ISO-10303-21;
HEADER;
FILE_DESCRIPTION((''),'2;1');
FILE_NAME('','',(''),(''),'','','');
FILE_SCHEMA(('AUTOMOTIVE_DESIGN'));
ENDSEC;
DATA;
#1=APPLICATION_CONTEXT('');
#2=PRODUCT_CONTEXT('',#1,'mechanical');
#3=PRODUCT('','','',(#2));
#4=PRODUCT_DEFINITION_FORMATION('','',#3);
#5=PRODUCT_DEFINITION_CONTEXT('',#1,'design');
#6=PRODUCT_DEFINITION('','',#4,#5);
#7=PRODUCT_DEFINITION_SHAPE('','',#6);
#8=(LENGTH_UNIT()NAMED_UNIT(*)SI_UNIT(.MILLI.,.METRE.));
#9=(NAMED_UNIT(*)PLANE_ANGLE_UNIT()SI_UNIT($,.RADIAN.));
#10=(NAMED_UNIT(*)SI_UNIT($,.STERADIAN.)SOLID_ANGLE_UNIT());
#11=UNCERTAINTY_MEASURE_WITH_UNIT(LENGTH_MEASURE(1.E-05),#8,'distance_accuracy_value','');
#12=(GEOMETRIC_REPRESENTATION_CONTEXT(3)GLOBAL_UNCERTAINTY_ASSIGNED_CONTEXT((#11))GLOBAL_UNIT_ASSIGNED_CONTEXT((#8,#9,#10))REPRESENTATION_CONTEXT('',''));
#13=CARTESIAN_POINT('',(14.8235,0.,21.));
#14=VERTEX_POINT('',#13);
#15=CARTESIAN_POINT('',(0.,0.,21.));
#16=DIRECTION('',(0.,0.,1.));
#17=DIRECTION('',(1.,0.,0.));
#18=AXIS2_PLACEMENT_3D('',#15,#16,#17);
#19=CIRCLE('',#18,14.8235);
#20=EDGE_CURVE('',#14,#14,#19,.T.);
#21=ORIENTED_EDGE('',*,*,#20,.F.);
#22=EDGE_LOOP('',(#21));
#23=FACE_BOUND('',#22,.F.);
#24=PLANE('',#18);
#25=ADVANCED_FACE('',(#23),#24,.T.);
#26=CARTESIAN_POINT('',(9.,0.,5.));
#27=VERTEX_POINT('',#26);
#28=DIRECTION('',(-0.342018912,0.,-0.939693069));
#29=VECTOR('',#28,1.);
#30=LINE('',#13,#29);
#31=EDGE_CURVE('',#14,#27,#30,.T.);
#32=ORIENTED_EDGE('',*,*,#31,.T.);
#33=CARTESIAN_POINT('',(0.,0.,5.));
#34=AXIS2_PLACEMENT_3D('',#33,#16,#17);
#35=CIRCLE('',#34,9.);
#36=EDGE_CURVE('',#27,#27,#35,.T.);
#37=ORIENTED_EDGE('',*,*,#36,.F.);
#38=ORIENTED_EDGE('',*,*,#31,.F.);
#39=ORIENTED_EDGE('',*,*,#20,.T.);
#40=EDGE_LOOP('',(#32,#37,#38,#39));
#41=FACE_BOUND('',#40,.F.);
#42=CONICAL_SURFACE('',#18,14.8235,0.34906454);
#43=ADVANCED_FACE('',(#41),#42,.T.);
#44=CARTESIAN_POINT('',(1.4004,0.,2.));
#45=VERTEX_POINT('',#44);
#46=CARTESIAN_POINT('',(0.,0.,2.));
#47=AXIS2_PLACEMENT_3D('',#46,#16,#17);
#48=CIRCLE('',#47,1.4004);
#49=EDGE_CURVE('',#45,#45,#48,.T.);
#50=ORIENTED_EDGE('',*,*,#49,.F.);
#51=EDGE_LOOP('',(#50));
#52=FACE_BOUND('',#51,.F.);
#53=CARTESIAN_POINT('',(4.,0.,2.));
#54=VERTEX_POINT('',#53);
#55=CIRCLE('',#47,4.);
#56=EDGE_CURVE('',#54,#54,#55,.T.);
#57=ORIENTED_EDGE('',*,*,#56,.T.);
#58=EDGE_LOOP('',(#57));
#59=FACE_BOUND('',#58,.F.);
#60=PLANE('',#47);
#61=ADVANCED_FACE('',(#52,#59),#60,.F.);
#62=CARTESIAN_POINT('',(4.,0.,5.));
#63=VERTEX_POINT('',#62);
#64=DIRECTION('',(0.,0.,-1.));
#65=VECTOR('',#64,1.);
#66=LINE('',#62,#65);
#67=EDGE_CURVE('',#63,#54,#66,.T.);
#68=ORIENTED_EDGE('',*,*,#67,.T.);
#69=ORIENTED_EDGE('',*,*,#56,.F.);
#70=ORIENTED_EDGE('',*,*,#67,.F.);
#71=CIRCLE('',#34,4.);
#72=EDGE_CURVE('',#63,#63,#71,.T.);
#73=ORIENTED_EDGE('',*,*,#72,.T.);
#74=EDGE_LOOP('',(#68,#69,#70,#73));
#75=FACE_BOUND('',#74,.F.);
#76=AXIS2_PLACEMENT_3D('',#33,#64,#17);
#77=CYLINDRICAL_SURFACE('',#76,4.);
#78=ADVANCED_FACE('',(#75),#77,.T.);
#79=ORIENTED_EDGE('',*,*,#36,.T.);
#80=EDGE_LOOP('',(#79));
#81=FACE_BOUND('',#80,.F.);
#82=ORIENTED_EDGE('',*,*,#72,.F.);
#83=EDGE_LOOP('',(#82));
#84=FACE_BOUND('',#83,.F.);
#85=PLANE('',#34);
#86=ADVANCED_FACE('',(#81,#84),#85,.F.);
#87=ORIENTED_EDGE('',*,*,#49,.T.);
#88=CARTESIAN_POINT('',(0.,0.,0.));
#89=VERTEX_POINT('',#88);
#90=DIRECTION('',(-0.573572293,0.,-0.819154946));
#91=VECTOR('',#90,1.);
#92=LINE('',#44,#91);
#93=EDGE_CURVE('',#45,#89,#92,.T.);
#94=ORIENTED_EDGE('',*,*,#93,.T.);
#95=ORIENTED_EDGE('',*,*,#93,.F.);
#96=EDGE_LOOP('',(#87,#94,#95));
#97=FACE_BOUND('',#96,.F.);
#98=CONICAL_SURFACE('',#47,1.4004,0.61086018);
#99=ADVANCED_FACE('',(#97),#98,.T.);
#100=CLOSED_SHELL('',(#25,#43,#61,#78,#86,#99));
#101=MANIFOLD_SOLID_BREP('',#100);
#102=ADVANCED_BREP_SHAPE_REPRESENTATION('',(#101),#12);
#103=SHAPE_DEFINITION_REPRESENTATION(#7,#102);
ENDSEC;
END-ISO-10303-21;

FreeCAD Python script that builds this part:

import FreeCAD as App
import Part
import Sketcher
from FreeCAD import Vector
Q = App.Units.Quantity

doc = App.newDocument("Part")
body = doc.addObject("PartDesign::Body", "Body")

# Sketch on XZ plane
sketch1 = doc.addObject("Sketcher::SketchObject", "Sketch")
body.addObject(sketch1)
sketch1.AttachmentSupport = (doc.XZ_Plane, [""])
sketch1.MapMode = "FlatFace"
sketch1.addGeometry(Part.LineSegment(Vector(1.4004, 2, 0), Vector(0, 0, 0)), False)
sketch1.addGeometry(Part.LineSegment(Vector(0, 0, 0), Vector(0, 21, 0)), False)
sketch1.addGeometry(Part.LineSegment(Vector(0, 21, 0), Vector(14.8235, 21, 0)), False)
sketch1.addGeometry(Part.LineSegment(Vector(14.8235, 21, 0), Vector(9, 5, 0)), False)
sketch1.addGeometry(Part.LineSegment(Vector(9, 5, 0), Vector(4, 5, 0)), False)
sketch1.addGeometry(Part.LineSegment(Vector(4, 5, 0), Vector(4, 2, 0)), False)
sketch1.addGeometry(Part.LineSegment(Vector(4, 2, 0), Vector(1.4004, 2, 0)), False)
sketch1.addConstraint(Sketcher.Constraint("Coincident", 0, 2, 1, 1))
sketch1.addConstraint(Sketcher.Constraint("Coincident", 1, 2, 2, 1))
sketch1.addConstraint(Sketcher.Constraint("Coincident", 2, 2, 3, 1))
sketch1.addConstraint(Sketcher.Constraint("Coincident", 3, 2, 4, 1))
sketch1.addConstraint(Sketcher.Constraint("Coincident", 4, 2, 5, 1))
sketch1.addConstraint(Sketcher.Constraint("Coincident", 5, 2, 6, 1))
sketch1.addConstraint(Sketcher.Constraint("Coincident", 6, 2, 0, 1))
sketch1.addConstraint(Sketcher.Constraint("Vertical", 1))
sketch1.addConstraint(Sketcher.Constraint("Horizontal", 2))
sketch1.addConstraint(Sketcher.Constraint("Horizontal", 4))
sketch1.addConstraint(Sketcher.Constraint("Vertical", 5))
sketch1.addConstraint(Sketcher.Constraint("Horizontal", 6))
sketch1.addConstraint(Sketcher.Constraint("Coincident", 0, 2, -1, 1))
sketch1.addConstraint(Sketcher.Constraint("DistanceY", 1, 1, 1, 2, 21.0))
sketch1.addConstraint(Sketcher.Constraint("DistanceY", 5, 2, 5, 1, 3.0))
sketch1.addConstraint(Sketcher.Constraint("Angle", 0, Q("-124.9997 deg")))
sketch1.addConstraint(Sketcher.Constraint("DistanceX", -1, 1, 3, 2, 9.0))
sketch1.addConstraint(Sketcher.Constraint("DistanceX", -1, 1, 4, 2, 4.0))
sketch1.addConstraint(Sketcher.Constraint("DistanceY", -1, 1, 5, 2, 2.0))
sketch1.addConstraint(Sketcher.Constraint("Angle", 3, Q("-110 deg")))
revolution = doc.addObject("PartDesign::Revolution", "Revolution")
body.addObject(revolution)
revolution.Profile = sketch1
revolution.ReferenceAxis = (sketch1, ["V_Axis"])
revolution.Angle = 360

doc.recompute()
